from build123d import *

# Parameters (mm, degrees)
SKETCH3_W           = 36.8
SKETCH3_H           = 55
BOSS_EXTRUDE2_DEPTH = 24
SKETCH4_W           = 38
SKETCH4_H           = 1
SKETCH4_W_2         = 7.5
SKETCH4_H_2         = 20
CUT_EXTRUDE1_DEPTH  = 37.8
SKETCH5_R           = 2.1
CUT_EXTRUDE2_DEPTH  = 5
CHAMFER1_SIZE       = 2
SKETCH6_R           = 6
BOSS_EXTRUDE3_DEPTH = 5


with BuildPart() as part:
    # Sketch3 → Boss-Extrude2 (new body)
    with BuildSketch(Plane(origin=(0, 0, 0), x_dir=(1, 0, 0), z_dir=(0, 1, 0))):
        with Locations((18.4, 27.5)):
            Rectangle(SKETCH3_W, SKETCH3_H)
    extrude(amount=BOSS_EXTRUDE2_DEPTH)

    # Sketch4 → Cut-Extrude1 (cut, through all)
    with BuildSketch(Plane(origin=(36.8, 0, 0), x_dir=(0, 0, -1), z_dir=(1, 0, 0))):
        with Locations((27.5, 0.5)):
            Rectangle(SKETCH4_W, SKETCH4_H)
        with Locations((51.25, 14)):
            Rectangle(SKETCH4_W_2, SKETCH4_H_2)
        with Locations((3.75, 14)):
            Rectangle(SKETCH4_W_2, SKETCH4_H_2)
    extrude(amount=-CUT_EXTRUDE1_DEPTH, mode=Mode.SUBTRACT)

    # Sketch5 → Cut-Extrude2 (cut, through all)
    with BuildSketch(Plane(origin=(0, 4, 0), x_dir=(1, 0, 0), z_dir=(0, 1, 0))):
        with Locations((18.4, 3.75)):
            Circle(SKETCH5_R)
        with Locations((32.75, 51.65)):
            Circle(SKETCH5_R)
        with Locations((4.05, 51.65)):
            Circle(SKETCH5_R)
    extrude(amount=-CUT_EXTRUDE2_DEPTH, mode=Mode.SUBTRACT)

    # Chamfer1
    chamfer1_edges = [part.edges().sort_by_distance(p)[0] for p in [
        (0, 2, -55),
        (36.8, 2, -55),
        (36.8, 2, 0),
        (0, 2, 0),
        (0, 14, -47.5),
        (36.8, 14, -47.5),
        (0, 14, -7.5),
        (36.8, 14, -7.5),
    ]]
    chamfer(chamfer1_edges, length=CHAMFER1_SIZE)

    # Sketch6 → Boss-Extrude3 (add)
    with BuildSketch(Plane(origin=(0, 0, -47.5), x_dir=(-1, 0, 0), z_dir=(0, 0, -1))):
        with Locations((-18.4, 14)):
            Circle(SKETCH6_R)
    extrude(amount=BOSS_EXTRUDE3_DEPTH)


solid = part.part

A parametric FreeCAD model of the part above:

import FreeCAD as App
import Part
import Sketcher
from FreeCAD import Vector


def edges_at(feature, points):
    """Names of the edges that pass closest to the given points."""
    edges = feature.Shape.Edges
    near = lambda p: min(range(len(edges)), key=lambda i: edges[i].distToShape(Part.Vertex(*p))[0])
    return sorted({f"Edge{near(p) + 1}" for p in points})

doc = App.newDocument("Part")
body = doc.addObject("PartDesign::Body", "Body")

sketch1 = body.newObject("Sketcher::SketchObject", "Sketch")
sketch1.AttachmentSupport = (doc.getObject("XZ_Plane"), [""])
sketch1.MapMode = "FlatFace"
sketch1.addGeometry([
    Part.LineSegment(Vector(0, -55, 0), Vector(0, 0, 0)),
    Part.LineSegment(Vector(0, 0, 0), Vector(37, 0, 0)),
    Part.LineSegment(Vector(37, 0, 0), Vector(37, -55, 0)),
    Part.LineSegment(Vector(37, -55, 0), Vector(0, -55, 0)),
], False)
sketch1.addConstraint([
    Sketcher.Constraint("Coincident", 0, 2, 1, 1),
    Sketcher.Constraint("Coincident", 1, 2, 2, 1),
    Sketcher.Constraint("Coincident", 2, 2, 3, 1),
    Sketcher.Constraint("Coincident", 3, 2, 0, 1),
    Sketcher.Constraint("Vertical", 0),
    Sketcher.Constraint("Horizontal", 1),
    Sketcher.Constraint("Vertical", 2),
    Sketcher.Constraint("Horizontal", 3),
    Sketcher.Constraint("Coincident", 0, 2, -1, 1),
    Sketcher.Constraint("DistanceY", 0, 1, 0, 2, 55.0),
    Sketcher.Constraint("DistanceX", 1, 1, 1, 2, 36.8),
])
pad1 = body.newObject("PartDesign::Pad", "Pad")
pad1.Profile = sketch1
pad1.Length = 24
pad1.Reversed = True

sketch2 = body.newObject("Sketcher::SketchObject", "Sketch001")
sketch2.AttachmentSupport = (doc.getObject("YZ_Plane"), [""])
sketch2.MapMode = "FlatFace"
sketch2.AttachmentOffset = App.Placement(Vector(0, 0, 36.8), App.Rotation())
sketch2.addGeometry([
    Part.LineSegment(Vector(1, -8.5, 0), Vector(0, -8.5, 0)),
    Part.LineSegment(Vector(0, -8.5, 0), Vector(0, -46.5, 0)),
    Part.LineSegment(Vector(0, -46.5, 0), Vector(1, -46.5, 0)),
    Part.LineSegment(Vector(1, -46.5, 0), Vector(1, -8.5, 0)),
    Part.LineSegment(Vector(24, -47.5, 0), Vector(4, -47.5, 0)),
    Part.LineSegment(Vector(4, -47.5, 0), Vector(4, -55, 0)),
    Part.LineSegment(Vector(4, -55, 0), Vector(24, -55, 0)),
    Part.LineSegment(Vector(24, -55, 0), Vector(24, -47.5, 0)),
    Part.LineSegment(Vector(24, 0, 0), Vector(4, 0, 0)),
    Part.LineSegment(Vector(4, 0, 0), Vector(4, -7.5, 0)),
    Part.LineSegment(Vector(4, -7.5, 0), Vector(24, -7.5, 0)),
    Part.LineSegment(Vector(24, -7.5, 0), Vector(24, 0, 0)),
], False)
sketch2.addConstraint([
    Sketcher.Constraint("Coincident", 0, 2, 1, 1),
    Sketcher.Constraint("Coincident", 1, 2, 2, 1),
    Sketcher.Constraint("Coincident", 2, 2, 3, 1),
    Sketcher.Constraint("Coincident", 3, 2, 0, 1),
    Sketcher.Constraint("Coincident", 4, 2, 5, 1),
    Sketcher.Constraint("Coincident", 5, 2, 6, 1),
    Sketcher.Constraint("Coincident", 6, 2, 7, 1),
    Sketcher.Constraint("Coincident", 7, 2, 4, 1),
    Sketcher.Constraint("Coincident", 8, 2, 9, 1),
    Sketcher.Constraint("Coincident", 9, 2, 10, 1),
    Sketcher.Constraint("Coincident", 10, 2, 11, 1),
    Sketcher.Constraint("Coincident", 11, 2, 8, 1),
    Sketcher.Constraint("Horizontal", 0),
    Sketcher.Constraint("Vertical", 1),
    Sketcher.Constraint("Horizontal", 2),
    Sketcher.Constraint("Vertical", 3),
    Sketcher.Constraint("Horizontal", 4),
    Sketcher.Constraint("Vertical", 5),
    Sketcher.Constraint("Horizontal", 6),
    Sketcher.Constraint("Vertical", 7),
    Sketcher.Constraint("Horizontal", 8),
    Sketcher.Constraint("Vertical", 9),
    Sketcher.Constraint("Horizontal", 10),
    Sketcher.Constraint("Vertical", 11),
    Sketcher.Constraint("PointOnObject", 0, 2, -2),
    Sketcher.Constraint("PointOnObject", 8, 2, -1),
    Sketcher.Constraint("Vertical", 5, 2, 8, 2),
    Sketcher.Constraint("Vertical", 7, 2, 10, 2),
    Sketcher.Constraint("Equal", 7, 9),
    Sketcher.Constraint("DistanceX", 0, 2, 0, 1, 1.0),
    Sketcher.Constraint("DistanceX", 4, 2, 4, 1, 20.0),
    Sketcher.Constraint("DistanceY", 1, 2, 1, 1, 38.0),
    Sketcher.Constraint("DistanceY", 5, 2, 5, 1, 7.5),
    Sketcher.Constraint("DistanceX", -1, 1, 4, 2, 4.0),
    Sketcher.Constraint("DistanceY", 5, 2, -1, 1, 55.0),
    Sketcher.Constraint("DistanceY", 4, 2, 2, 2, 1.0),
])
pocket1 = body.newObject("PartDesign::Pocket", "Pocket")
pocket1.Profile = sketch2
pocket1.Type = "ThroughAll"

sketch3 = body.newObject("Sketcher::SketchObject", "Sketch002")
sketch3.AttachmentSupport = (doc.getObject("XZ_Plane"), [""])
sketch3.MapMode = "FlatFace"
sketch3.AttachmentOffset = App.Placement(Vector(0, 0, -4), App.Rotation())
sketch3.addGeometry([
    Part.Circle(Vector(18.4, -3.8, 0), Vector(0, 0, 1), 2.1),
    Part.Circle(Vector(32.8, -51.6, 0), Vector(0, 0, 1), 2.1),
    Part.Circle(Vector(4, -51.6, 0), Vector(0, 0, 1), 2.1),
], False)
sketch3.addConstraint([
    Sketcher.Constraint("Equal", 0, 1),
    Sketcher.Constraint("Equal", 1, 2),
    Sketcher.Constraint("Horizontal", 1, 3, 2, 3),
    Sketcher.Constraint("Diameter", 0, 4.2),
    Sketcher.Constraint("DistanceX", -1, 1, 0, 3, 18.4),
    Sketcher.Constraint("DistanceY", 1, 3, 0, 3, 47.9),
    Sketcher.Constraint("DistanceX", 2, 3, 1, 3, 28.7),
    Sketcher.Constraint("DistanceY", 0, 3, -1, 1, 3.75),
    Sketcher.Constraint("DistanceX", -1, 1, 1, 3, 32.75),
])
pocket2 = body.newObject("PartDesign::Pocket", "Pocket001")
pocket2.Profile = sketch3
pocket2.Type = "ThroughAll"
pocket2.Reversed = True
doc.recompute()

chamfer = body.newObject("PartDesign::Chamfer", "Chamfer")
chamfer.Base = (pocket2, edges_at(pocket2, [
    (0, 2, -55),
    (36.8, 2, -55),
    (36.8, 2, 0),
    (0, 2, 0),
    (0, 14, -47.5),
    (36.8, 14, -47.5),
    (0, 14, -7.5),
    (36.8, 14, -7.5),
]))
chamfer.Size = 2

sketch4 = body.newObject("Sketcher::SketchObject", "Sketch003")
sketch4.AttachmentSupport = (doc.getObject("XY_Plane"), [""])
sketch4.MapMode = "FlatFace"
sketch4.AttachmentOffset = App.Placement(Vector(0, 0, -47.5), App.Rotation())
sketch4.addGeometry(Part.Circle(Vector(18, 14, 0), Vector(0, 0, 1), 6), False)
sketch4.addConstraint([
    Sketcher.Constraint("Diameter", 0, 12.0),
    Sketcher.Constraint("DistanceY", -1, 1, 0, 3, 14.0),
    Sketcher.Constraint("DistanceX", -1, 1, 0, 3, 18.4),
])
pad2 = body.newObject("PartDesign::Pad", "Pad001")
pad2.Profile = sketch4
pad2.Length = 5
pad2.Reversed = True

doc.recompute()
